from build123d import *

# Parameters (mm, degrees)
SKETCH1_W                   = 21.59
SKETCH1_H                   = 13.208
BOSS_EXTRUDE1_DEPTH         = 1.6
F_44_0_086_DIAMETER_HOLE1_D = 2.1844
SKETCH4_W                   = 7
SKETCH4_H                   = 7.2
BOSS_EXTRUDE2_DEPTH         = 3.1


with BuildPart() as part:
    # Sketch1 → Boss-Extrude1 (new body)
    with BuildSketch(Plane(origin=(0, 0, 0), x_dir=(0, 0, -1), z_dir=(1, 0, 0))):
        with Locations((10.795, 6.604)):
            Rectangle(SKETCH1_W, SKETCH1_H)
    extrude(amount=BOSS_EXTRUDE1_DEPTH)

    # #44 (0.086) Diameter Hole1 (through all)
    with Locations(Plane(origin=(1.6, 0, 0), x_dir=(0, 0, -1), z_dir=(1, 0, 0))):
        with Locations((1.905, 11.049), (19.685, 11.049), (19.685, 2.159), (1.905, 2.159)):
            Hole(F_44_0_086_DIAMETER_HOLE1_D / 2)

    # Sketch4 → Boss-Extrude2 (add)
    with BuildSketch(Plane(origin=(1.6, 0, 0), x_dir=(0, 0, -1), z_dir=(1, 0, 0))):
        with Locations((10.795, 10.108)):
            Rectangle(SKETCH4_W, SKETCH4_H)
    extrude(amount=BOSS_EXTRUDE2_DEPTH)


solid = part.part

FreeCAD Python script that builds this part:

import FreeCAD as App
import Part
import Sketcher

V = App.Vector


def add_polygon(sketch, points):
    """Adds a closed chain of lines whose ends are joined by coincident constraints."""
    first, n = sketch.GeometryCount, len(points)
    for a, b in zip(points, points[1:] + points[:1]):
        sketch.addGeometry(Part.LineSegment(App.Vector(*a, 0), App.Vector(*b, 0)), False)
    for i in range(n):
        sketch.addConstraint(Sketcher.Constraint("Coincident", first + i, 2, first + (i + 1) % n, 1))

doc = App.newDocument("Part")
body = doc.addObject("PartDesign::Body", "Body")

# Sketch on YZ plane
sketch1 = body.newObject("Sketcher::SketchObject", "Sketch")
sketch1.AttachmentSupport = (doc.getObject("YZ_Plane"), [""])
sketch1.MapMode = "FlatFace"
add_polygon(sketch1, [(13, 0), (0, 0), (0, -22), (13, -22)])  # lines 0-3
sketch1.addConstraint([
    Sketcher.Constraint("Horizontal", 0),
    Sketcher.Constraint("Vertical", 1),
    Sketcher.Constraint("Horizontal", 2),
    Sketcher.Constraint("Vertical", 3),
    Sketcher.Constraint("Coincident", 0, 2, -1, 1),
    Sketcher.Constraint("DistanceY", 1, 2, 1, 1, 21.59),
    Sketcher.Constraint("DistanceX", 0, 2, 0, 1, 13.208),
])
pad1 = body.newObject("PartDesign::Pad", "Pad")
pad1.Profile = sketch1
pad1.Length = 1.6

# Sketch on YZ plane
sketch2 = body.newObject("Sketcher::SketchObject", "Sketch001")
sketch2.AttachmentSupport = (doc.getObject("YZ_Plane"), [""])
sketch2.MapMode = "FlatFace"
sketch2.AttachmentOffset = App.Placement(V(0, 0, 1.6), App.Rotation())
sketch2.addGeometry([
    Part.Circle(V(11, -1.9, 0), V(0, 0, 1), 1.1),
    Part.Circle(V(11, -19.7, 0), V(0, 0, 1), 1.1),
    Part.Circle(V(2.2, -19.7, 0), V(0, 0, 1), 1.1),
    Part.Circle(V(2.2, -1.9, 0), V(0, 0, 1), 1.1),
], False)
sketch2.addConstraint([
    Sketcher.Constraint("Equal", 0, 1),
    Sketcher.Constraint("Equal", 1, 2),
    Sketcher.Constraint("Equal", 2, 3),
    Sketcher.Constraint("Horizontal", 1, 3, 2, 3),
    Sketcher.Constraint("Horizontal", 0, 3, 3, 3),
    Sketcher.Constraint("Vertical", 0, 3, 1, 3),
    Sketcher.Constraint("Vertical", 2, 3, 3, 3),
    Sketcher.Constraint("Diameter", 0, 2.1844),
    Sketcher.Constraint("DistanceY", 1, 3, 0, 3, 17.78),
    Sketcher.Constraint("DistanceX", 2, 3, 1, 3, 8.89),
    Sketcher.Constraint("DistanceX", -1, 1, 0, 3, 11.049),
    Sketcher.Constraint("DistanceY", 0, 3, -1, 1, 1.905),
])
doc.recompute()
hole = body.newObject("PartDesign::Hole", "Hole")
hole.Profile = sketch2
hole.ThreadType = "None"
hole.Diameter = 2.1844
hole.DepthType = "ThroughAll"

# Sketch on YZ plane
sketch3 = body.newObject("Sketcher::SketchObject", "Sketch002")
sketch3.AttachmentSupport = (doc.getObject("YZ_Plane"), [""])
sketch3.MapMode = "FlatFace"
sketch3.AttachmentOffset = App.Placement(V(0, 0, 1.6), App.Rotation())
add_polygon(sketch3, [(14, -7), (7, -7), (7, -14), (14, -14)])  # lines 0-3
sketch3.addConstraint([
    Sketcher.Constraint("Horizontal", 0),
    Sketcher.Constraint("Vertical", 1),
    Sketcher.Constraint("Horizontal", 2),
    Sketcher.Constraint("Vertical", 3),
    Sketcher.Constraint("DistanceY", 1, 2, 1, 1, 7.0),
    Sketcher.Constraint("DistanceX", 0, 2, 0, 1, 7.2),
    Sketcher.Constraint("DistanceX", -1, 1, 0, 2, 6.508),
    Sketcher.Constraint("DistanceY", 0, 2, -1, 1, 7.295),
])
pad2 = body.newObject("PartDesign::Pad", "Pad001")
pad2.Profile = sketch3
pad2.Length = 3.1

doc.recompute()
